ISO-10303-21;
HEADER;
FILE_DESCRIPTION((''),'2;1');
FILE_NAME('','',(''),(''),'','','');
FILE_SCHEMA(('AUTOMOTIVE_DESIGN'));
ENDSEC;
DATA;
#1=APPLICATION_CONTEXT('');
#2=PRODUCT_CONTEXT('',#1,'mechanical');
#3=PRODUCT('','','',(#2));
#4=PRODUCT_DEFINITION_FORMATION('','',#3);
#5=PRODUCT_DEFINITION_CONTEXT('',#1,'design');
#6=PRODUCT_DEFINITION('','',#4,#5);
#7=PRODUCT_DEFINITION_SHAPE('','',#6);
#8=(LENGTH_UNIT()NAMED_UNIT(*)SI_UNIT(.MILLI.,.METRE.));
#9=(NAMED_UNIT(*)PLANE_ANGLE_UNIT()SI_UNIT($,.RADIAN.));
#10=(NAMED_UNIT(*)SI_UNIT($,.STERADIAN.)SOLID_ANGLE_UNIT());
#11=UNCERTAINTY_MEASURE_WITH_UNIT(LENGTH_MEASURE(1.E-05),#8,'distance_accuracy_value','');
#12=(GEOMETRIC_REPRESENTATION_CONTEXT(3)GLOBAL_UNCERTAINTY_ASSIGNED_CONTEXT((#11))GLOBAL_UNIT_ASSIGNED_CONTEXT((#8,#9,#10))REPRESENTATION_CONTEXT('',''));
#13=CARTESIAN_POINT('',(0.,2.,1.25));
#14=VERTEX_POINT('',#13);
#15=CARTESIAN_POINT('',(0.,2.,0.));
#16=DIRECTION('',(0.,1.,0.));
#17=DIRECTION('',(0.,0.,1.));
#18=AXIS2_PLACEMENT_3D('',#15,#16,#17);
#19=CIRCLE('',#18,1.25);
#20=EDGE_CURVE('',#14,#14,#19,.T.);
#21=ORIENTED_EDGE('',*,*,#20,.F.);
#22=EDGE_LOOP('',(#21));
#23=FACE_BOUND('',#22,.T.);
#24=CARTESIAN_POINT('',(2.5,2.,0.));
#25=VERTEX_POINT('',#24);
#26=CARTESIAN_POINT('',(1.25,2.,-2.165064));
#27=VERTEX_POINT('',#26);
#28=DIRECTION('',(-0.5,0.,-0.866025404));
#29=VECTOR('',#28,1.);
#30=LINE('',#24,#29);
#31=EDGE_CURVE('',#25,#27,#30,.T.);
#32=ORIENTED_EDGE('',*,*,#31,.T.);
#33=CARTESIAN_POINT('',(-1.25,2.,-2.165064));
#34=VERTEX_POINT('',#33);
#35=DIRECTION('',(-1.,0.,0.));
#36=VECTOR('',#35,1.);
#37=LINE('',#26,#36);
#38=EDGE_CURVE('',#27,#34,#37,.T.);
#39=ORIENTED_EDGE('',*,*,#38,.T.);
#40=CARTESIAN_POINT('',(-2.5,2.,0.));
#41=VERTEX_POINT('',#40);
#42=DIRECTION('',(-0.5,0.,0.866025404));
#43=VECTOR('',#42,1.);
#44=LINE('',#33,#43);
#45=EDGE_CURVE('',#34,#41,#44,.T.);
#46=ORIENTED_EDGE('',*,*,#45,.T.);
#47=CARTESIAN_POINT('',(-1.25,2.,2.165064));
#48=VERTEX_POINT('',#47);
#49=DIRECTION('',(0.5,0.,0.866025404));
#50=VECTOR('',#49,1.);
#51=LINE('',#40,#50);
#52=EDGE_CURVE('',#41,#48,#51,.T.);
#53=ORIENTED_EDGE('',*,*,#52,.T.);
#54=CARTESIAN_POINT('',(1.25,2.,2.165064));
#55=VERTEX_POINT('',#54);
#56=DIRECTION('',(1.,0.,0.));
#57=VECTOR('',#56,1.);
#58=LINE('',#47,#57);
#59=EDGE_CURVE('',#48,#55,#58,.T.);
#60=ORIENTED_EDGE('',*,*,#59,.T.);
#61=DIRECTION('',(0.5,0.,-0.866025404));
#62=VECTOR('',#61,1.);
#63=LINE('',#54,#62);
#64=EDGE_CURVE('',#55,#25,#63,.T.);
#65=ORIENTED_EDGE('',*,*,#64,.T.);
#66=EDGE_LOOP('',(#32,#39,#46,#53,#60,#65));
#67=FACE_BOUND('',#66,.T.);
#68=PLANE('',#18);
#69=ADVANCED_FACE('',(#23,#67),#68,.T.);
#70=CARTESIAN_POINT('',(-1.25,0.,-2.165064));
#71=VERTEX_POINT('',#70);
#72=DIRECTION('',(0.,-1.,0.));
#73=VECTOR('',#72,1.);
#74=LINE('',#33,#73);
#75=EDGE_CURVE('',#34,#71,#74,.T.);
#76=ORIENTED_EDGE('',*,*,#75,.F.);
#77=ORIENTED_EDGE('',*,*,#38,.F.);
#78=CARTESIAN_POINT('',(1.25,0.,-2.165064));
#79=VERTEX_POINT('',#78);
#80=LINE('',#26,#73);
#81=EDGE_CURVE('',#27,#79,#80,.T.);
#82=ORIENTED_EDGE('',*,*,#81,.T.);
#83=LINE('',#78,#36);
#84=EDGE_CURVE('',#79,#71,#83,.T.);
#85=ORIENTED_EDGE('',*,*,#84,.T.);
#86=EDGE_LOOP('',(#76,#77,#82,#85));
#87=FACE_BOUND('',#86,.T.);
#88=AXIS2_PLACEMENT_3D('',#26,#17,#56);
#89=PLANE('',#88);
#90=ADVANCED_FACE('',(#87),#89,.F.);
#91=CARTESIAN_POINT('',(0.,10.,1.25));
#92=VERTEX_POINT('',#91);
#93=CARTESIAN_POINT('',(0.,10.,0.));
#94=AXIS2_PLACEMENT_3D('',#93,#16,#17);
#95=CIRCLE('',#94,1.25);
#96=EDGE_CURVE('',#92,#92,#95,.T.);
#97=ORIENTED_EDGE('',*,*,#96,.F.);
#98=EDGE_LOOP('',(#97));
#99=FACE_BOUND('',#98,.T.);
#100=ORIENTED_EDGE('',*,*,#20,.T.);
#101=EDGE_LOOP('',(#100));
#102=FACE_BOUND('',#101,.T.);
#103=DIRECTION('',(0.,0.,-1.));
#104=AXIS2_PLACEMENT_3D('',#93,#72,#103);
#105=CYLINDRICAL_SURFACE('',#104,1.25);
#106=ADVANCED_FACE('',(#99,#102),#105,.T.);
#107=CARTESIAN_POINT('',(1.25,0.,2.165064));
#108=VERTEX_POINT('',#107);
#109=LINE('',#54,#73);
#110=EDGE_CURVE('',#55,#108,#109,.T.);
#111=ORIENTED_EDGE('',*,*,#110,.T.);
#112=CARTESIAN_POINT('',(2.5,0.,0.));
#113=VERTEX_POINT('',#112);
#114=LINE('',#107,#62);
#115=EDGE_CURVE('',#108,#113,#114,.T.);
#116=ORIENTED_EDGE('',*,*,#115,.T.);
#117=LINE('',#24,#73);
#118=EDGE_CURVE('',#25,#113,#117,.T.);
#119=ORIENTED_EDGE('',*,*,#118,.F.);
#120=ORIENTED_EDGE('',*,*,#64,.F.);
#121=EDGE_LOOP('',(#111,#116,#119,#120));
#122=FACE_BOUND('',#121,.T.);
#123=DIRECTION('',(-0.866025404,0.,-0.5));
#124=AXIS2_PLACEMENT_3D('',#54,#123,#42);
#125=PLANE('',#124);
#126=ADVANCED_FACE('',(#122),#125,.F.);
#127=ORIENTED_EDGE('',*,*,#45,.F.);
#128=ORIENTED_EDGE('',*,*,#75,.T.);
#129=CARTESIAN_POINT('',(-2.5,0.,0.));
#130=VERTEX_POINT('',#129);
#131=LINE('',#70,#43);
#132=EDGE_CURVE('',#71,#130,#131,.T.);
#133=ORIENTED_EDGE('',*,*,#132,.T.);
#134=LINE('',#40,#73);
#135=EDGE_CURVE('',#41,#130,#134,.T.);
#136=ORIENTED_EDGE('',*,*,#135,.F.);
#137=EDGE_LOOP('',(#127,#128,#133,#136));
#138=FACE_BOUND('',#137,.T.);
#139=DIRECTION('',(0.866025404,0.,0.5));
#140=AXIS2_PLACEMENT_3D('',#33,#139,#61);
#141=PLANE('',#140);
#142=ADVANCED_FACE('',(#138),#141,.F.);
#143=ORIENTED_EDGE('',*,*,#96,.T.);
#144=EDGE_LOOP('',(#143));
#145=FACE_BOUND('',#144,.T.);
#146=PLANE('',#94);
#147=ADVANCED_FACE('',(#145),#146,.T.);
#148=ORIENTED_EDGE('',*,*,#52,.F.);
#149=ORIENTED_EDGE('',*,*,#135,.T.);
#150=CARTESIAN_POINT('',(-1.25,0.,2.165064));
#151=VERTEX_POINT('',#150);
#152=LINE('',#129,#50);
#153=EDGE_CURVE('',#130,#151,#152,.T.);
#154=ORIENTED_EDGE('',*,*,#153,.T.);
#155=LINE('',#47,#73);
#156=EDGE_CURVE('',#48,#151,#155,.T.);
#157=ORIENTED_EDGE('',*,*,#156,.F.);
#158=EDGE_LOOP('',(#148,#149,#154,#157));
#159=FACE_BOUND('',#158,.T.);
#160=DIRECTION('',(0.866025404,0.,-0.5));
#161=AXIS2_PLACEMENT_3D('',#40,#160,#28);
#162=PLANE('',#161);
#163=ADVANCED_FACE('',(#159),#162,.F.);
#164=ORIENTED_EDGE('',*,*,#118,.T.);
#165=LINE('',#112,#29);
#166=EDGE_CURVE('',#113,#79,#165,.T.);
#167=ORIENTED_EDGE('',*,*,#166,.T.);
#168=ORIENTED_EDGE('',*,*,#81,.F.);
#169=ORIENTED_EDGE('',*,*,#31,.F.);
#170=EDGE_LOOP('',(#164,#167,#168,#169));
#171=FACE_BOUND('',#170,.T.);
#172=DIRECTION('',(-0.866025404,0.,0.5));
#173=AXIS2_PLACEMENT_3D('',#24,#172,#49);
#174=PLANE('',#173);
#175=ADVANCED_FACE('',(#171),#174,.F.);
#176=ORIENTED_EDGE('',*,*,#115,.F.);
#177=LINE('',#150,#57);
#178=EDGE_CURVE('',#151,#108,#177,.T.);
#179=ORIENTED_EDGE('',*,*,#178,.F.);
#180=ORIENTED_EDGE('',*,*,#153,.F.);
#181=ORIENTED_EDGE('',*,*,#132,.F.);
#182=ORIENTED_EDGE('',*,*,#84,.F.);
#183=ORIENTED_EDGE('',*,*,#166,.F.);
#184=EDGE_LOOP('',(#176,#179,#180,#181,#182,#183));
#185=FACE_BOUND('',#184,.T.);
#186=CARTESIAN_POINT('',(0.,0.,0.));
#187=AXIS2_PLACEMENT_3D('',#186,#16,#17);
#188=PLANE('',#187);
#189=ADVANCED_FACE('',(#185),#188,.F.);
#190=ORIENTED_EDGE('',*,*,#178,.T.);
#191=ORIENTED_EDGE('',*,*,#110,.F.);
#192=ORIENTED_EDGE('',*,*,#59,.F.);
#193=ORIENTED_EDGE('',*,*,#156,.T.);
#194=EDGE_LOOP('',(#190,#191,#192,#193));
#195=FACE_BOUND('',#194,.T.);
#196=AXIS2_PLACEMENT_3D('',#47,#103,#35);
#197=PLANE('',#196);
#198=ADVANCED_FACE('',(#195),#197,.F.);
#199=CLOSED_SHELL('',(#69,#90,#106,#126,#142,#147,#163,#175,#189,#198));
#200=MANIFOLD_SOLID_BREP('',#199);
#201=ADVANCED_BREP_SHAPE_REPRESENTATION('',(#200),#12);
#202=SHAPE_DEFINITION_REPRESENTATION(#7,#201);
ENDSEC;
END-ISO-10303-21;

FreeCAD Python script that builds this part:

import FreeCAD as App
import Part
import Sketcher
Q = App.Units.Quantity

doc = App.newDocument("Part")
body = doc.addObject("PartDesign::Body", "Body")

# Sketch on XZ plane
sketch1 = doc.addObject("Sketcher::SketchObject", "Sketch")
body.addObject(sketch1)
sketch1.AttachmentSupport = (doc.XZ_Plane, [""])
sketch1.MapMode = "FlatFace"
sketch1.addGeometry([
    Part.LineSegment(App.Vector(1.25, -2.165064, 0), App.Vector(-1.25, -2.165064, 0)),  # 0
    Part.LineSegment(App.Vector(-1.25, -2.165064, 0), App.Vector(-2.5, 0, 0)),  # 1
    Part.LineSegment(App.Vector(-2.5, 0, 0), App.Vector(-1.25, 2.165064, 0)),  # 2
    Part.LineSegment(App.Vector(-1.25, 2.165064, 0), App.Vector(1.25, 2.165064, 0)),  # 3
    Part.LineSegment(App.Vector(1.25, 2.165064, 0), App.Vector(2.5, 0, 0)),  # 4
    Part.LineSegment(App.Vector(2.5, 0, 0), App.Vector(1.25, -2.165064, 0)),  # 5
], False)
sketch1.addConstraint([
    Sketcher.Constraint("Coincident", 0, 2, 1, 1),
    Sketcher.Constraint("Coincident", 1, 2, 2, 1),
    Sketcher.Constraint("Coincident", 2, 2, 3, 1),
    Sketcher.Constraint("Coincident", 3, 2, 4, 1),
    Sketcher.Constraint("Coincident", 4, 2, 5, 1),
    Sketcher.Constraint("Coincident", 5, 2, 0, 1),
    Sketcher.Constraint("Horizontal", 0),
    Sketcher.Constraint("Horizontal", 3),
    Sketcher.Constraint("Symmetric", 0, 2, 3, 2, -1, 1),
    Sketcher.Constraint("Symmetric", 1, 2, 4, 2, -1, 1),
    Sketcher.Constraint("PointOnObject", 1, 2, -1),
    Sketcher.Constraint("Parallel", 2, 5),
    Sketcher.Constraint("Vertical", 0, 2, 2, 2),
    Sketcher.Constraint("Angle", 1, Q("120 deg")),
    Sketcher.Constraint("DistanceX", 0, 2, 0, 1, 2.5),
    Sketcher.Constraint("DistanceX", 1, 2, 4, 2, 5.0),
])
pad1 = doc.addObject("PartDesign::Pad", "Pad")
body.addObject(pad1)
pad1.Profile = sketch1
pad1.Length = 2
pad1.Reversed = True

# Sketch on XZ plane
sketch2 = doc.addObject("Sketcher::SketchObject", "Sketch001")
body.addObject(sketch2)
sketch2.AttachmentSupport = (doc.XZ_Plane, [""])
sketch2.MapMode = "FlatFace"
sketch2.AttachmentOffset = App.Placement(App.Vector(0, 0, -2), App.Rotation())
sketch2.addGeometry(Part.Circle(App.Vector(0, 0, 0), App.Vector(0, 0, 1), 1.25), False)
sketch2.addConstraint([
    Sketcher.Constraint("Coincident", 0, 3, -1, 1),
    Sketcher.Constraint("Diameter", 0, 2.5),
])
pad2 = doc.addObject("PartDesign::Pad", "Pad001")
body.addObject(pad2)
pad2.Profile = sketch2
pad2.Length = 8
pad2.Reversed = True

doc.recompute()
